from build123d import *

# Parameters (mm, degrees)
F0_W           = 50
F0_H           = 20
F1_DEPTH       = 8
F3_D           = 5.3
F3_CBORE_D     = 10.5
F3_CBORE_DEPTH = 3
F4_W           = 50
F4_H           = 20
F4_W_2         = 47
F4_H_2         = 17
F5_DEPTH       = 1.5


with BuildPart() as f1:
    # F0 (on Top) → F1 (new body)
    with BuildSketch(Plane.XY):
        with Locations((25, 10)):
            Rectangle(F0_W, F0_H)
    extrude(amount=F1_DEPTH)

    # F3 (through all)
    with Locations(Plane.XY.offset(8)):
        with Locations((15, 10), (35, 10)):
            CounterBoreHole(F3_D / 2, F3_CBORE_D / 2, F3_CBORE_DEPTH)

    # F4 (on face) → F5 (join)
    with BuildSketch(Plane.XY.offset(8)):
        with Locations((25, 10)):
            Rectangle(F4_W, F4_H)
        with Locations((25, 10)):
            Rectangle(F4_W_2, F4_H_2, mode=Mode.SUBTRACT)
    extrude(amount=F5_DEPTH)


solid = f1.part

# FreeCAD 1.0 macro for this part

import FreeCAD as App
import Part
import Sketcher
Q = App.Units.Quantity


def add_polygon(sketch, points):
    """Adds a closed chain of lines whose ends are joined by coincident constraints."""
    first, n = sketch.GeometryCount, len(points)
    for a, b in zip(points, points[1:] + points[:1]):
        sketch.addGeometry(Part.LineSegment(App.Vector(*a, 0), App.Vector(*b, 0)), False)
    for i in range(n):
        sketch.addConstraint(Sketcher.Constraint("Coincident", first + i, 2, first + (i + 1) % n, 1))

doc = App.newDocument("Part")
body = doc.addObject("PartDesign::Body", "Body")

# Sketch on XY plane
sketch1 = body.newObject("Sketcher::SketchObject", "Sketch")
sketch1.AttachmentSupport = (doc.getObject("XY_Plane"), [""])
sketch1.MapMode = "FlatFace"
add_polygon(sketch1, [(0, 20), (0, 0), (50, 0), (50, 20)])  # lines 0-3
sketch1.addConstraint([
    Sketcher.Constraint("Vertical", 0),
    Sketcher.Constraint("Horizontal", 1),
    Sketcher.Constraint("Vertical", 2),
    Sketcher.Constraint("Horizontal", 3),
    Sketcher.Constraint("Coincident", 0, 2, -1, 1),
    Sketcher.Constraint("DistanceX", 1, 1, 1, 2, Q("50 mm")),
    Sketcher.Constraint("DistanceY", 0, 2, 0, 1, Q("20 mm")),
])
pad1 = body.newObject("PartDesign::Pad", "Pad")
pad1.Profile = sketch1
pad1.Length = 8

# Sketch on XY plane
sketch2 = body.newObject("Sketcher::SketchObject", "Sketch001")
sketch2.AttachmentSupport = (doc.getObject("XY_Plane"), [""])
sketch2.MapMode = "FlatFace"
sketch2.AttachmentOffset = App.Placement(App.Vector(0, 0, 8), App.Rotation())
sketch2.addGeometry([
    Part.Circle(App.Vector(15, 10, 0), App.Vector(0, 0, 1), 2.6),
    Part.Circle(App.Vector(35, 10, 0), App.Vector(0, 0, 1), 2.6),
], False)
sketch2.addConstraint([
    Sketcher.Constraint("Equal", 0, 1),
    Sketcher.Constraint("Horizontal", 0, 3, 1, 3),
    Sketcher.Constraint("Diameter", 0, Q("5.3 mm")),
    Sketcher.Constraint("DistanceX", -1, 1, 0, 3, Q("15 mm")),
    Sketcher.Constraint("DistanceY", -1, 1, 0, 3, Q("10 mm")),
    Sketcher.Constraint("DistanceX", -1, 1, 1, 3, Q("35 mm")),
])
doc.recompute()
hole = body.newObject("PartDesign::Hole", "Hole")
hole.Profile = sketch2
hole.ThreadType = "None"
hole.Diameter = 5.3
hole.DepthType = "ThroughAll"
hole.HoleCutType = "Counterbore"
hole.HoleCutDiameter = 10.5
hole.HoleCutDepth = 3

# Sketch on XY plane
sketch3 = body.newObject("Sketcher::SketchObject", "Sketch002")
sketch3.AttachmentSupport = (doc.getObject("XY_Plane"), [""])
sketch3.MapMode = "FlatFace"
sketch3.AttachmentOffset = App.Placement(App.Vector(0, 0, 8), App.Rotation())
add_polygon(sketch3, [(0, 20), (0, 0), (50, 0), (50, 20)])  # lines 0-3
add_polygon(sketch3, [(48, 2), (2, 2), (2, 18), (48, 18)])  # lines 4-7
sketch3.addConstraint([
    Sketcher.Constraint("Vertical", 0),
    Sketcher.Constraint("Horizontal", 1),
    Sketcher.Constraint("Vertical", 2),
    Sketcher.Constraint("Horizontal", 3),
    Sketcher.Constraint("Horizontal", 4),
    Sketcher.Constraint("Vertical", 5),
    Sketcher.Constraint("Horizontal", 6),
    Sketcher.Constraint("Vertical", 7),
    Sketcher.Constraint("Coincident", 0, 2, -1, 1),
    Sketcher.Constraint("DistanceX", 1, 1, 1, 2, Q("50 mm")),
    Sketcher.Constraint("DistanceX", 4, 2, 4, 1, Q("47 mm")),
    Sketcher.Constraint("DistanceY", 0, 2, 0, 1, Q("20 mm")),
    Sketcher.Constraint("DistanceY", 5, 1, 5, 2, Q("17 mm")),
    Sketcher.Constraint("DistanceX", -1, 1, 4, 2, Q("1.5 mm")),
    Sketcher.Constraint("DistanceY", -1, 1, 4, 2, Q("1.5 mm")),
])
pad2 = body.newObject("PartDesign::Pad", "Pad001")
pad2.Profile = sketch3
pad2.Length = 1.5

doc.recompute()
